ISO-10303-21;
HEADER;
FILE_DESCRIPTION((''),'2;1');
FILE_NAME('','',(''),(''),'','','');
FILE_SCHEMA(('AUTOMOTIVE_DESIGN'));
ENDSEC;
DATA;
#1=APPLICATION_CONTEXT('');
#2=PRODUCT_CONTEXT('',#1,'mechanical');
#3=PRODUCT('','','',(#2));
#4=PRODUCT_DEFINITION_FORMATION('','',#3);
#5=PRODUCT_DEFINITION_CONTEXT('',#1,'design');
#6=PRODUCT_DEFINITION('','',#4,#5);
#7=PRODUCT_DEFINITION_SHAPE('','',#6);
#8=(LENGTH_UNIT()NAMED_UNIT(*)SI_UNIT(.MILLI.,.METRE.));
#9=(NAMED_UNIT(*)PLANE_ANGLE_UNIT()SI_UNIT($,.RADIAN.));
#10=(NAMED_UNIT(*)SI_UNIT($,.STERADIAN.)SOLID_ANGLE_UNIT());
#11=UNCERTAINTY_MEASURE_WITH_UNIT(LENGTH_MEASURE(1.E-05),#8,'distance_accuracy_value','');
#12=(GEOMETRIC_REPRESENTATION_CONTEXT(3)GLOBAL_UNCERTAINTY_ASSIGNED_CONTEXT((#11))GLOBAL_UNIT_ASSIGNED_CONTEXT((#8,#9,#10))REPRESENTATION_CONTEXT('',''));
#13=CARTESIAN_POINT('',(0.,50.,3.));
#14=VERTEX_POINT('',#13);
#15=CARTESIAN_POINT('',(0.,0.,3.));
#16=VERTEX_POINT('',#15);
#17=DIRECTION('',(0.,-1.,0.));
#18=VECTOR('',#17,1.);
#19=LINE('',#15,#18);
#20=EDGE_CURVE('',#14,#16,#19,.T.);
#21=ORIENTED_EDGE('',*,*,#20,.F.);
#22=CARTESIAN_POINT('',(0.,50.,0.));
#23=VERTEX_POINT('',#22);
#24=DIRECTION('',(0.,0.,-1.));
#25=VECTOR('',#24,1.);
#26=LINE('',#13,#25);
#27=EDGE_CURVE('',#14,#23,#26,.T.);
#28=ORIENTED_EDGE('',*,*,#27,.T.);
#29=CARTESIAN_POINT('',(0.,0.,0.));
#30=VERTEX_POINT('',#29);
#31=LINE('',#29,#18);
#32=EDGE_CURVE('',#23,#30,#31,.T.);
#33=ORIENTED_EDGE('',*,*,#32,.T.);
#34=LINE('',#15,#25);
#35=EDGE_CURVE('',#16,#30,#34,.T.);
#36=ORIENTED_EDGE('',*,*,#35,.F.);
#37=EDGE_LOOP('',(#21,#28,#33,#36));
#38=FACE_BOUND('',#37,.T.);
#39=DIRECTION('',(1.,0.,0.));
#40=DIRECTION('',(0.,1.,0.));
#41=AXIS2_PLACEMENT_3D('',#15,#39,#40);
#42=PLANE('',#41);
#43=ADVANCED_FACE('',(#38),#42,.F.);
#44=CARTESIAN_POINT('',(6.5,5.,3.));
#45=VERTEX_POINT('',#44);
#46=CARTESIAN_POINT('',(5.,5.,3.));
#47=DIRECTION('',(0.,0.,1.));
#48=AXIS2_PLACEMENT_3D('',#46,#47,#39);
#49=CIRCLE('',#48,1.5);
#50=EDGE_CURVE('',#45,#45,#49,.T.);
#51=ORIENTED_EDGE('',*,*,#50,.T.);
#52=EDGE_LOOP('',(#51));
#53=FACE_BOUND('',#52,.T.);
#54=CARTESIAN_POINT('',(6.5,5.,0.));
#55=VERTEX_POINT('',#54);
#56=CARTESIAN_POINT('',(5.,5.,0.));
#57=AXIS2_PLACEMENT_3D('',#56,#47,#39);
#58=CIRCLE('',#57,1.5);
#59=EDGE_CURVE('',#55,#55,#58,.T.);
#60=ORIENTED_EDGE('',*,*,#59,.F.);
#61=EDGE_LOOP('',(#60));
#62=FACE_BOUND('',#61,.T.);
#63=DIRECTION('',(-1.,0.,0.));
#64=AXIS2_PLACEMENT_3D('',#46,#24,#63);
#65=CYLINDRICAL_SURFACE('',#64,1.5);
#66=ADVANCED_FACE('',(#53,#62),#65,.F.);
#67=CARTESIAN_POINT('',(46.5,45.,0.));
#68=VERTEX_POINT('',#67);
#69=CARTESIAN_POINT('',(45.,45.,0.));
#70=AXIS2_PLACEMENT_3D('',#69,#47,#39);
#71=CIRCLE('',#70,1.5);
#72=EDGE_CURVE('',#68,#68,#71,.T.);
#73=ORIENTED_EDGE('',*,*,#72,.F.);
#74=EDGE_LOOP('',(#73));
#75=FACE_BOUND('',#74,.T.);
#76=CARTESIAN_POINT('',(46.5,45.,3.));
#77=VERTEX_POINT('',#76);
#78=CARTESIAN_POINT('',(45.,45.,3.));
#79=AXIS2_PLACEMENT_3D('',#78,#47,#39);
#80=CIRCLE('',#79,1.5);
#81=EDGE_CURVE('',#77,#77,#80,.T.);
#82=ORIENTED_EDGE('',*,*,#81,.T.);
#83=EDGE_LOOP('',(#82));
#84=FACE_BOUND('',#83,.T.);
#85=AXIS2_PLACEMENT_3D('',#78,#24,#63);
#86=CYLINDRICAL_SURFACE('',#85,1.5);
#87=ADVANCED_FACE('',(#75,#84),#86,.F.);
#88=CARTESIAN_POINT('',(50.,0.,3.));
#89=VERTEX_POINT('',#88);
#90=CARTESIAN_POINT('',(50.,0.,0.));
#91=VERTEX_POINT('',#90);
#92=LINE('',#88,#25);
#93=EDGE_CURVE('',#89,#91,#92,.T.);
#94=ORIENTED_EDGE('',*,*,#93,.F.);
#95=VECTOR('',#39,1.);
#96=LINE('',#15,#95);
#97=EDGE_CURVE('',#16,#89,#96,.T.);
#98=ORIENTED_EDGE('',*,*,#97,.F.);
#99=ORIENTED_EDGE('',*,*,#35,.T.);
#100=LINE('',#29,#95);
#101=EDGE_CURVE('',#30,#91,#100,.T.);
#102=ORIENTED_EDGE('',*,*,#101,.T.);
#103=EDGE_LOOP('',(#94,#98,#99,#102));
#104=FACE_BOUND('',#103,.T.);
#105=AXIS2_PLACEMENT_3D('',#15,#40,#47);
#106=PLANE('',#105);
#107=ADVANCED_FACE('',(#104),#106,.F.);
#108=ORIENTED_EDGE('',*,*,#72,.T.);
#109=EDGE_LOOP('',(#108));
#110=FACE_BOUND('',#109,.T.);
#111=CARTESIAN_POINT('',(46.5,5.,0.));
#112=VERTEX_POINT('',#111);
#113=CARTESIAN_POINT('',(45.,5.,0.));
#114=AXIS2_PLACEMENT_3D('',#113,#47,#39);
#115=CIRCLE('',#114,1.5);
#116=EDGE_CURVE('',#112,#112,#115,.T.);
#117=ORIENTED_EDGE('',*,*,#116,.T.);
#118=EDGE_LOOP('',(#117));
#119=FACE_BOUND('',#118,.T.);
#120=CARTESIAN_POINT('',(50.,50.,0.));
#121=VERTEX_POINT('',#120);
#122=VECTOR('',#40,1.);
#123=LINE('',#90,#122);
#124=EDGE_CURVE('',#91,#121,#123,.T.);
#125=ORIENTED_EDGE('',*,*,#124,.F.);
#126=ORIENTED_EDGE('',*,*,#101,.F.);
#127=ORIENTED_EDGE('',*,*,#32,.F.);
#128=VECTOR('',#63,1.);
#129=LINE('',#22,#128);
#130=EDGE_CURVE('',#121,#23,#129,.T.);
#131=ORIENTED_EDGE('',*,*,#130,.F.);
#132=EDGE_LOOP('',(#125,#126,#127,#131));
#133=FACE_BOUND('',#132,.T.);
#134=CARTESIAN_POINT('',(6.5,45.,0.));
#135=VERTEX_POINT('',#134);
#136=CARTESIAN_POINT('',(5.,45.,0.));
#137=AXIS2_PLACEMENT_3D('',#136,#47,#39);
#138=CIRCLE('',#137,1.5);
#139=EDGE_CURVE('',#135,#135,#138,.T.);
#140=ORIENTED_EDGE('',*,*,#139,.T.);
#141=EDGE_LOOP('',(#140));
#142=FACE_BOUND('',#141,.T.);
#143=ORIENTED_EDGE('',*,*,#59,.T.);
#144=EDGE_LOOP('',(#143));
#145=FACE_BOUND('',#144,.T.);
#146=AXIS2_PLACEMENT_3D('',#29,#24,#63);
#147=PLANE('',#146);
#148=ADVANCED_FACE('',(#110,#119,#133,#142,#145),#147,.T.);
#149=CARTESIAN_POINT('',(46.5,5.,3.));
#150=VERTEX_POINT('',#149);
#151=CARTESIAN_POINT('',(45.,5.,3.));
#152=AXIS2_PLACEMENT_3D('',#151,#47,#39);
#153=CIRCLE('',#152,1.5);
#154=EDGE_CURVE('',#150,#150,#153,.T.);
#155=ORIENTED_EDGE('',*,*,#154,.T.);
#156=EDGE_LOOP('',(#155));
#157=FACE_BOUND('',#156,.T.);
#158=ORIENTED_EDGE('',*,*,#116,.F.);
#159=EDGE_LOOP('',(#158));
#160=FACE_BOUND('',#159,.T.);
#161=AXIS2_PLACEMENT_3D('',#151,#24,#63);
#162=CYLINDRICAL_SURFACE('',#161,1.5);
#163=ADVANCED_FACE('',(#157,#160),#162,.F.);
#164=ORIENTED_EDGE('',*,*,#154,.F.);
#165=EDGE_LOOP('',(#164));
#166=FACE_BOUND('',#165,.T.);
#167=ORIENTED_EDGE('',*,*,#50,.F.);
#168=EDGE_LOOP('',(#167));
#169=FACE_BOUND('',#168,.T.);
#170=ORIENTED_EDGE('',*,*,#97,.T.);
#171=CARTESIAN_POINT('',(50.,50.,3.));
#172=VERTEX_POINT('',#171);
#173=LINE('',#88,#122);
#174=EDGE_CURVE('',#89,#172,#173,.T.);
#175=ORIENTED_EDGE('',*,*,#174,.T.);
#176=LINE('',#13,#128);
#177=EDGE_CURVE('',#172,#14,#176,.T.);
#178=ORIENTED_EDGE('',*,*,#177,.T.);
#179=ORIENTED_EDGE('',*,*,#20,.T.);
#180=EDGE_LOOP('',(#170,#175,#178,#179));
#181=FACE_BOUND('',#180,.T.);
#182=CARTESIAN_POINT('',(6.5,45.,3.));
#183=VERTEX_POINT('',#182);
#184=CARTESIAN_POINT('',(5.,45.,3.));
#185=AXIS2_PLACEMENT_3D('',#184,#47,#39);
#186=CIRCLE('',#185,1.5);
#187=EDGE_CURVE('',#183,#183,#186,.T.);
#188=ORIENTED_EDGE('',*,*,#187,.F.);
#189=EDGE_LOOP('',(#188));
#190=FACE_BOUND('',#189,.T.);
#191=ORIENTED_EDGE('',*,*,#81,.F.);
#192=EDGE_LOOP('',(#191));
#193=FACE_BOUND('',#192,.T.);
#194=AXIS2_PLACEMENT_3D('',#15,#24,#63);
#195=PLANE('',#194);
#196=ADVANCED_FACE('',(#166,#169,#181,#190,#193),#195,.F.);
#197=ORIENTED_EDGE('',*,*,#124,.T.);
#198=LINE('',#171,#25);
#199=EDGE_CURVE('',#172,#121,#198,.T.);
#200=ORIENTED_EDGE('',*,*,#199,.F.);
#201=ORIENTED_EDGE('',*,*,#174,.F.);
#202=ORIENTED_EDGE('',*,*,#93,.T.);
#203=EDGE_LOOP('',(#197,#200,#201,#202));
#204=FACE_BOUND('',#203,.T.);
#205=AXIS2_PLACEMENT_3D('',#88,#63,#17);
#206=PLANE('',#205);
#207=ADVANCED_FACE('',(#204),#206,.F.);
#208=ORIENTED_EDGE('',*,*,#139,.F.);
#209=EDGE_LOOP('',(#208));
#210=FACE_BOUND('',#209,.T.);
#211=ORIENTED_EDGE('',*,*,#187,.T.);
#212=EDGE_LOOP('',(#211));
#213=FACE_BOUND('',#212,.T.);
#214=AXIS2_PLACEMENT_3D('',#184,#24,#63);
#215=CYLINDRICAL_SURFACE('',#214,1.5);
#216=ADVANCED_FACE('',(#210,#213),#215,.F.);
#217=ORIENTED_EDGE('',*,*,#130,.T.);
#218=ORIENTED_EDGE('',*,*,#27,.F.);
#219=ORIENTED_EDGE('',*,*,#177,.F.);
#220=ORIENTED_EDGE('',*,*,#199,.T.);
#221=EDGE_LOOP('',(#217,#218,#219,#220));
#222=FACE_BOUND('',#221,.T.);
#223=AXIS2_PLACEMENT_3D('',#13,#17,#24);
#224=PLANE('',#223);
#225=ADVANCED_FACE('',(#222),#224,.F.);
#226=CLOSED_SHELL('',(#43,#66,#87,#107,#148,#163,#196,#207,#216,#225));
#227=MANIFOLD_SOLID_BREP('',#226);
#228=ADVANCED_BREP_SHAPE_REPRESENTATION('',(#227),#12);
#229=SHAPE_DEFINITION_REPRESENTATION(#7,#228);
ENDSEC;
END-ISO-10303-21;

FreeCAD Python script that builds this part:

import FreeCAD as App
import Part
import Sketcher

V = App.Vector


def add_polygon(sketch, points):
    """Adds a closed chain of lines whose ends are joined by coincident constraints."""
    first, n = sketch.GeometryCount, len(points)
    for a, b in zip(points, points[1:] + points[:1]):
        sketch.addGeometry(Part.LineSegment(App.Vector(*a, 0), App.Vector(*b, 0)), False)
    for i in range(n):
        sketch.addConstraint(Sketcher.Constraint("Coincident", first + i, 2, first + (i + 1) % n, 1))

doc = App.newDocument("Part")
body = doc.addObject("PartDesign::Body", "Body")

sketch1 = body.newObject("Sketcher::SketchObject", "Sketch")
sketch1.AttachmentSupport = (doc.getObject("XY_Plane"), [""])
sketch1.MapMode = "FlatFace"
add_polygon(sketch1, [(0, 50), (0, 0), (50, 0), (50, 50)])
sketch1.addGeometry(Part.Circle(V(5, 5, 0), V(0, 0, 1), 1.5), False)
sketch1.addGeometry(Part.Circle(V(45, 5, 0), V(0, 0, 1), 1.5), False)
sketch1.addGeometry(Part.Circle(V(5, 45, 0), V(0, 0, 1), 1.5), False)
sketch1.addGeometry(Part.Circle(V(45, 45, 0), V(0, 0, 1), 1.5), False)
sketch1.addConstraint([
    Sketcher.Constraint("Vertical", 0),
    Sketcher.Constraint("Horizontal", 1),
    Sketcher.Constraint("Vertical", 2),
    Sketcher.Constraint("Horizontal", 3),
    Sketcher.Constraint("Coincident", 0, 2, -1, 1),
    Sketcher.Constraint("Equal", 4, 5),
    Sketcher.Constraint("Equal", 5, 6),
    Sketcher.Constraint("Equal", 6, 7),
    Sketcher.Constraint("Horizontal", 4, 3, 5, 3),
    Sketcher.Constraint("Horizontal", 6, 3, 7, 3),
    Sketcher.Constraint("Vertical", 4, 3, 6, 3),
    Sketcher.Constraint("Vertical", 5, 3, 7, 3),
    Sketcher.Constraint("Equal", 3, 0),
    Sketcher.Constraint("Diameter", 4, 3.0),
    Sketcher.Constraint("DistanceX", 1, 1, 1, 2, 50.0),
    Sketcher.Constraint("DistanceX", -1, 1, 4, 3, 5.0),
    Sketcher.Constraint("DistanceY", -1, 1, 4, 3, 5.0),
    Sketcher.Constraint("DistanceX", -1, 1, 5, 3, 45.0),
    Sketcher.Constraint("DistanceY", -1, 1, 6, 3, 45.0),
])
pad1 = body.newObject("PartDesign::Pad", "Pad")
pad1.Profile = sketch1
pad1.Length = 3

doc.recompute()
